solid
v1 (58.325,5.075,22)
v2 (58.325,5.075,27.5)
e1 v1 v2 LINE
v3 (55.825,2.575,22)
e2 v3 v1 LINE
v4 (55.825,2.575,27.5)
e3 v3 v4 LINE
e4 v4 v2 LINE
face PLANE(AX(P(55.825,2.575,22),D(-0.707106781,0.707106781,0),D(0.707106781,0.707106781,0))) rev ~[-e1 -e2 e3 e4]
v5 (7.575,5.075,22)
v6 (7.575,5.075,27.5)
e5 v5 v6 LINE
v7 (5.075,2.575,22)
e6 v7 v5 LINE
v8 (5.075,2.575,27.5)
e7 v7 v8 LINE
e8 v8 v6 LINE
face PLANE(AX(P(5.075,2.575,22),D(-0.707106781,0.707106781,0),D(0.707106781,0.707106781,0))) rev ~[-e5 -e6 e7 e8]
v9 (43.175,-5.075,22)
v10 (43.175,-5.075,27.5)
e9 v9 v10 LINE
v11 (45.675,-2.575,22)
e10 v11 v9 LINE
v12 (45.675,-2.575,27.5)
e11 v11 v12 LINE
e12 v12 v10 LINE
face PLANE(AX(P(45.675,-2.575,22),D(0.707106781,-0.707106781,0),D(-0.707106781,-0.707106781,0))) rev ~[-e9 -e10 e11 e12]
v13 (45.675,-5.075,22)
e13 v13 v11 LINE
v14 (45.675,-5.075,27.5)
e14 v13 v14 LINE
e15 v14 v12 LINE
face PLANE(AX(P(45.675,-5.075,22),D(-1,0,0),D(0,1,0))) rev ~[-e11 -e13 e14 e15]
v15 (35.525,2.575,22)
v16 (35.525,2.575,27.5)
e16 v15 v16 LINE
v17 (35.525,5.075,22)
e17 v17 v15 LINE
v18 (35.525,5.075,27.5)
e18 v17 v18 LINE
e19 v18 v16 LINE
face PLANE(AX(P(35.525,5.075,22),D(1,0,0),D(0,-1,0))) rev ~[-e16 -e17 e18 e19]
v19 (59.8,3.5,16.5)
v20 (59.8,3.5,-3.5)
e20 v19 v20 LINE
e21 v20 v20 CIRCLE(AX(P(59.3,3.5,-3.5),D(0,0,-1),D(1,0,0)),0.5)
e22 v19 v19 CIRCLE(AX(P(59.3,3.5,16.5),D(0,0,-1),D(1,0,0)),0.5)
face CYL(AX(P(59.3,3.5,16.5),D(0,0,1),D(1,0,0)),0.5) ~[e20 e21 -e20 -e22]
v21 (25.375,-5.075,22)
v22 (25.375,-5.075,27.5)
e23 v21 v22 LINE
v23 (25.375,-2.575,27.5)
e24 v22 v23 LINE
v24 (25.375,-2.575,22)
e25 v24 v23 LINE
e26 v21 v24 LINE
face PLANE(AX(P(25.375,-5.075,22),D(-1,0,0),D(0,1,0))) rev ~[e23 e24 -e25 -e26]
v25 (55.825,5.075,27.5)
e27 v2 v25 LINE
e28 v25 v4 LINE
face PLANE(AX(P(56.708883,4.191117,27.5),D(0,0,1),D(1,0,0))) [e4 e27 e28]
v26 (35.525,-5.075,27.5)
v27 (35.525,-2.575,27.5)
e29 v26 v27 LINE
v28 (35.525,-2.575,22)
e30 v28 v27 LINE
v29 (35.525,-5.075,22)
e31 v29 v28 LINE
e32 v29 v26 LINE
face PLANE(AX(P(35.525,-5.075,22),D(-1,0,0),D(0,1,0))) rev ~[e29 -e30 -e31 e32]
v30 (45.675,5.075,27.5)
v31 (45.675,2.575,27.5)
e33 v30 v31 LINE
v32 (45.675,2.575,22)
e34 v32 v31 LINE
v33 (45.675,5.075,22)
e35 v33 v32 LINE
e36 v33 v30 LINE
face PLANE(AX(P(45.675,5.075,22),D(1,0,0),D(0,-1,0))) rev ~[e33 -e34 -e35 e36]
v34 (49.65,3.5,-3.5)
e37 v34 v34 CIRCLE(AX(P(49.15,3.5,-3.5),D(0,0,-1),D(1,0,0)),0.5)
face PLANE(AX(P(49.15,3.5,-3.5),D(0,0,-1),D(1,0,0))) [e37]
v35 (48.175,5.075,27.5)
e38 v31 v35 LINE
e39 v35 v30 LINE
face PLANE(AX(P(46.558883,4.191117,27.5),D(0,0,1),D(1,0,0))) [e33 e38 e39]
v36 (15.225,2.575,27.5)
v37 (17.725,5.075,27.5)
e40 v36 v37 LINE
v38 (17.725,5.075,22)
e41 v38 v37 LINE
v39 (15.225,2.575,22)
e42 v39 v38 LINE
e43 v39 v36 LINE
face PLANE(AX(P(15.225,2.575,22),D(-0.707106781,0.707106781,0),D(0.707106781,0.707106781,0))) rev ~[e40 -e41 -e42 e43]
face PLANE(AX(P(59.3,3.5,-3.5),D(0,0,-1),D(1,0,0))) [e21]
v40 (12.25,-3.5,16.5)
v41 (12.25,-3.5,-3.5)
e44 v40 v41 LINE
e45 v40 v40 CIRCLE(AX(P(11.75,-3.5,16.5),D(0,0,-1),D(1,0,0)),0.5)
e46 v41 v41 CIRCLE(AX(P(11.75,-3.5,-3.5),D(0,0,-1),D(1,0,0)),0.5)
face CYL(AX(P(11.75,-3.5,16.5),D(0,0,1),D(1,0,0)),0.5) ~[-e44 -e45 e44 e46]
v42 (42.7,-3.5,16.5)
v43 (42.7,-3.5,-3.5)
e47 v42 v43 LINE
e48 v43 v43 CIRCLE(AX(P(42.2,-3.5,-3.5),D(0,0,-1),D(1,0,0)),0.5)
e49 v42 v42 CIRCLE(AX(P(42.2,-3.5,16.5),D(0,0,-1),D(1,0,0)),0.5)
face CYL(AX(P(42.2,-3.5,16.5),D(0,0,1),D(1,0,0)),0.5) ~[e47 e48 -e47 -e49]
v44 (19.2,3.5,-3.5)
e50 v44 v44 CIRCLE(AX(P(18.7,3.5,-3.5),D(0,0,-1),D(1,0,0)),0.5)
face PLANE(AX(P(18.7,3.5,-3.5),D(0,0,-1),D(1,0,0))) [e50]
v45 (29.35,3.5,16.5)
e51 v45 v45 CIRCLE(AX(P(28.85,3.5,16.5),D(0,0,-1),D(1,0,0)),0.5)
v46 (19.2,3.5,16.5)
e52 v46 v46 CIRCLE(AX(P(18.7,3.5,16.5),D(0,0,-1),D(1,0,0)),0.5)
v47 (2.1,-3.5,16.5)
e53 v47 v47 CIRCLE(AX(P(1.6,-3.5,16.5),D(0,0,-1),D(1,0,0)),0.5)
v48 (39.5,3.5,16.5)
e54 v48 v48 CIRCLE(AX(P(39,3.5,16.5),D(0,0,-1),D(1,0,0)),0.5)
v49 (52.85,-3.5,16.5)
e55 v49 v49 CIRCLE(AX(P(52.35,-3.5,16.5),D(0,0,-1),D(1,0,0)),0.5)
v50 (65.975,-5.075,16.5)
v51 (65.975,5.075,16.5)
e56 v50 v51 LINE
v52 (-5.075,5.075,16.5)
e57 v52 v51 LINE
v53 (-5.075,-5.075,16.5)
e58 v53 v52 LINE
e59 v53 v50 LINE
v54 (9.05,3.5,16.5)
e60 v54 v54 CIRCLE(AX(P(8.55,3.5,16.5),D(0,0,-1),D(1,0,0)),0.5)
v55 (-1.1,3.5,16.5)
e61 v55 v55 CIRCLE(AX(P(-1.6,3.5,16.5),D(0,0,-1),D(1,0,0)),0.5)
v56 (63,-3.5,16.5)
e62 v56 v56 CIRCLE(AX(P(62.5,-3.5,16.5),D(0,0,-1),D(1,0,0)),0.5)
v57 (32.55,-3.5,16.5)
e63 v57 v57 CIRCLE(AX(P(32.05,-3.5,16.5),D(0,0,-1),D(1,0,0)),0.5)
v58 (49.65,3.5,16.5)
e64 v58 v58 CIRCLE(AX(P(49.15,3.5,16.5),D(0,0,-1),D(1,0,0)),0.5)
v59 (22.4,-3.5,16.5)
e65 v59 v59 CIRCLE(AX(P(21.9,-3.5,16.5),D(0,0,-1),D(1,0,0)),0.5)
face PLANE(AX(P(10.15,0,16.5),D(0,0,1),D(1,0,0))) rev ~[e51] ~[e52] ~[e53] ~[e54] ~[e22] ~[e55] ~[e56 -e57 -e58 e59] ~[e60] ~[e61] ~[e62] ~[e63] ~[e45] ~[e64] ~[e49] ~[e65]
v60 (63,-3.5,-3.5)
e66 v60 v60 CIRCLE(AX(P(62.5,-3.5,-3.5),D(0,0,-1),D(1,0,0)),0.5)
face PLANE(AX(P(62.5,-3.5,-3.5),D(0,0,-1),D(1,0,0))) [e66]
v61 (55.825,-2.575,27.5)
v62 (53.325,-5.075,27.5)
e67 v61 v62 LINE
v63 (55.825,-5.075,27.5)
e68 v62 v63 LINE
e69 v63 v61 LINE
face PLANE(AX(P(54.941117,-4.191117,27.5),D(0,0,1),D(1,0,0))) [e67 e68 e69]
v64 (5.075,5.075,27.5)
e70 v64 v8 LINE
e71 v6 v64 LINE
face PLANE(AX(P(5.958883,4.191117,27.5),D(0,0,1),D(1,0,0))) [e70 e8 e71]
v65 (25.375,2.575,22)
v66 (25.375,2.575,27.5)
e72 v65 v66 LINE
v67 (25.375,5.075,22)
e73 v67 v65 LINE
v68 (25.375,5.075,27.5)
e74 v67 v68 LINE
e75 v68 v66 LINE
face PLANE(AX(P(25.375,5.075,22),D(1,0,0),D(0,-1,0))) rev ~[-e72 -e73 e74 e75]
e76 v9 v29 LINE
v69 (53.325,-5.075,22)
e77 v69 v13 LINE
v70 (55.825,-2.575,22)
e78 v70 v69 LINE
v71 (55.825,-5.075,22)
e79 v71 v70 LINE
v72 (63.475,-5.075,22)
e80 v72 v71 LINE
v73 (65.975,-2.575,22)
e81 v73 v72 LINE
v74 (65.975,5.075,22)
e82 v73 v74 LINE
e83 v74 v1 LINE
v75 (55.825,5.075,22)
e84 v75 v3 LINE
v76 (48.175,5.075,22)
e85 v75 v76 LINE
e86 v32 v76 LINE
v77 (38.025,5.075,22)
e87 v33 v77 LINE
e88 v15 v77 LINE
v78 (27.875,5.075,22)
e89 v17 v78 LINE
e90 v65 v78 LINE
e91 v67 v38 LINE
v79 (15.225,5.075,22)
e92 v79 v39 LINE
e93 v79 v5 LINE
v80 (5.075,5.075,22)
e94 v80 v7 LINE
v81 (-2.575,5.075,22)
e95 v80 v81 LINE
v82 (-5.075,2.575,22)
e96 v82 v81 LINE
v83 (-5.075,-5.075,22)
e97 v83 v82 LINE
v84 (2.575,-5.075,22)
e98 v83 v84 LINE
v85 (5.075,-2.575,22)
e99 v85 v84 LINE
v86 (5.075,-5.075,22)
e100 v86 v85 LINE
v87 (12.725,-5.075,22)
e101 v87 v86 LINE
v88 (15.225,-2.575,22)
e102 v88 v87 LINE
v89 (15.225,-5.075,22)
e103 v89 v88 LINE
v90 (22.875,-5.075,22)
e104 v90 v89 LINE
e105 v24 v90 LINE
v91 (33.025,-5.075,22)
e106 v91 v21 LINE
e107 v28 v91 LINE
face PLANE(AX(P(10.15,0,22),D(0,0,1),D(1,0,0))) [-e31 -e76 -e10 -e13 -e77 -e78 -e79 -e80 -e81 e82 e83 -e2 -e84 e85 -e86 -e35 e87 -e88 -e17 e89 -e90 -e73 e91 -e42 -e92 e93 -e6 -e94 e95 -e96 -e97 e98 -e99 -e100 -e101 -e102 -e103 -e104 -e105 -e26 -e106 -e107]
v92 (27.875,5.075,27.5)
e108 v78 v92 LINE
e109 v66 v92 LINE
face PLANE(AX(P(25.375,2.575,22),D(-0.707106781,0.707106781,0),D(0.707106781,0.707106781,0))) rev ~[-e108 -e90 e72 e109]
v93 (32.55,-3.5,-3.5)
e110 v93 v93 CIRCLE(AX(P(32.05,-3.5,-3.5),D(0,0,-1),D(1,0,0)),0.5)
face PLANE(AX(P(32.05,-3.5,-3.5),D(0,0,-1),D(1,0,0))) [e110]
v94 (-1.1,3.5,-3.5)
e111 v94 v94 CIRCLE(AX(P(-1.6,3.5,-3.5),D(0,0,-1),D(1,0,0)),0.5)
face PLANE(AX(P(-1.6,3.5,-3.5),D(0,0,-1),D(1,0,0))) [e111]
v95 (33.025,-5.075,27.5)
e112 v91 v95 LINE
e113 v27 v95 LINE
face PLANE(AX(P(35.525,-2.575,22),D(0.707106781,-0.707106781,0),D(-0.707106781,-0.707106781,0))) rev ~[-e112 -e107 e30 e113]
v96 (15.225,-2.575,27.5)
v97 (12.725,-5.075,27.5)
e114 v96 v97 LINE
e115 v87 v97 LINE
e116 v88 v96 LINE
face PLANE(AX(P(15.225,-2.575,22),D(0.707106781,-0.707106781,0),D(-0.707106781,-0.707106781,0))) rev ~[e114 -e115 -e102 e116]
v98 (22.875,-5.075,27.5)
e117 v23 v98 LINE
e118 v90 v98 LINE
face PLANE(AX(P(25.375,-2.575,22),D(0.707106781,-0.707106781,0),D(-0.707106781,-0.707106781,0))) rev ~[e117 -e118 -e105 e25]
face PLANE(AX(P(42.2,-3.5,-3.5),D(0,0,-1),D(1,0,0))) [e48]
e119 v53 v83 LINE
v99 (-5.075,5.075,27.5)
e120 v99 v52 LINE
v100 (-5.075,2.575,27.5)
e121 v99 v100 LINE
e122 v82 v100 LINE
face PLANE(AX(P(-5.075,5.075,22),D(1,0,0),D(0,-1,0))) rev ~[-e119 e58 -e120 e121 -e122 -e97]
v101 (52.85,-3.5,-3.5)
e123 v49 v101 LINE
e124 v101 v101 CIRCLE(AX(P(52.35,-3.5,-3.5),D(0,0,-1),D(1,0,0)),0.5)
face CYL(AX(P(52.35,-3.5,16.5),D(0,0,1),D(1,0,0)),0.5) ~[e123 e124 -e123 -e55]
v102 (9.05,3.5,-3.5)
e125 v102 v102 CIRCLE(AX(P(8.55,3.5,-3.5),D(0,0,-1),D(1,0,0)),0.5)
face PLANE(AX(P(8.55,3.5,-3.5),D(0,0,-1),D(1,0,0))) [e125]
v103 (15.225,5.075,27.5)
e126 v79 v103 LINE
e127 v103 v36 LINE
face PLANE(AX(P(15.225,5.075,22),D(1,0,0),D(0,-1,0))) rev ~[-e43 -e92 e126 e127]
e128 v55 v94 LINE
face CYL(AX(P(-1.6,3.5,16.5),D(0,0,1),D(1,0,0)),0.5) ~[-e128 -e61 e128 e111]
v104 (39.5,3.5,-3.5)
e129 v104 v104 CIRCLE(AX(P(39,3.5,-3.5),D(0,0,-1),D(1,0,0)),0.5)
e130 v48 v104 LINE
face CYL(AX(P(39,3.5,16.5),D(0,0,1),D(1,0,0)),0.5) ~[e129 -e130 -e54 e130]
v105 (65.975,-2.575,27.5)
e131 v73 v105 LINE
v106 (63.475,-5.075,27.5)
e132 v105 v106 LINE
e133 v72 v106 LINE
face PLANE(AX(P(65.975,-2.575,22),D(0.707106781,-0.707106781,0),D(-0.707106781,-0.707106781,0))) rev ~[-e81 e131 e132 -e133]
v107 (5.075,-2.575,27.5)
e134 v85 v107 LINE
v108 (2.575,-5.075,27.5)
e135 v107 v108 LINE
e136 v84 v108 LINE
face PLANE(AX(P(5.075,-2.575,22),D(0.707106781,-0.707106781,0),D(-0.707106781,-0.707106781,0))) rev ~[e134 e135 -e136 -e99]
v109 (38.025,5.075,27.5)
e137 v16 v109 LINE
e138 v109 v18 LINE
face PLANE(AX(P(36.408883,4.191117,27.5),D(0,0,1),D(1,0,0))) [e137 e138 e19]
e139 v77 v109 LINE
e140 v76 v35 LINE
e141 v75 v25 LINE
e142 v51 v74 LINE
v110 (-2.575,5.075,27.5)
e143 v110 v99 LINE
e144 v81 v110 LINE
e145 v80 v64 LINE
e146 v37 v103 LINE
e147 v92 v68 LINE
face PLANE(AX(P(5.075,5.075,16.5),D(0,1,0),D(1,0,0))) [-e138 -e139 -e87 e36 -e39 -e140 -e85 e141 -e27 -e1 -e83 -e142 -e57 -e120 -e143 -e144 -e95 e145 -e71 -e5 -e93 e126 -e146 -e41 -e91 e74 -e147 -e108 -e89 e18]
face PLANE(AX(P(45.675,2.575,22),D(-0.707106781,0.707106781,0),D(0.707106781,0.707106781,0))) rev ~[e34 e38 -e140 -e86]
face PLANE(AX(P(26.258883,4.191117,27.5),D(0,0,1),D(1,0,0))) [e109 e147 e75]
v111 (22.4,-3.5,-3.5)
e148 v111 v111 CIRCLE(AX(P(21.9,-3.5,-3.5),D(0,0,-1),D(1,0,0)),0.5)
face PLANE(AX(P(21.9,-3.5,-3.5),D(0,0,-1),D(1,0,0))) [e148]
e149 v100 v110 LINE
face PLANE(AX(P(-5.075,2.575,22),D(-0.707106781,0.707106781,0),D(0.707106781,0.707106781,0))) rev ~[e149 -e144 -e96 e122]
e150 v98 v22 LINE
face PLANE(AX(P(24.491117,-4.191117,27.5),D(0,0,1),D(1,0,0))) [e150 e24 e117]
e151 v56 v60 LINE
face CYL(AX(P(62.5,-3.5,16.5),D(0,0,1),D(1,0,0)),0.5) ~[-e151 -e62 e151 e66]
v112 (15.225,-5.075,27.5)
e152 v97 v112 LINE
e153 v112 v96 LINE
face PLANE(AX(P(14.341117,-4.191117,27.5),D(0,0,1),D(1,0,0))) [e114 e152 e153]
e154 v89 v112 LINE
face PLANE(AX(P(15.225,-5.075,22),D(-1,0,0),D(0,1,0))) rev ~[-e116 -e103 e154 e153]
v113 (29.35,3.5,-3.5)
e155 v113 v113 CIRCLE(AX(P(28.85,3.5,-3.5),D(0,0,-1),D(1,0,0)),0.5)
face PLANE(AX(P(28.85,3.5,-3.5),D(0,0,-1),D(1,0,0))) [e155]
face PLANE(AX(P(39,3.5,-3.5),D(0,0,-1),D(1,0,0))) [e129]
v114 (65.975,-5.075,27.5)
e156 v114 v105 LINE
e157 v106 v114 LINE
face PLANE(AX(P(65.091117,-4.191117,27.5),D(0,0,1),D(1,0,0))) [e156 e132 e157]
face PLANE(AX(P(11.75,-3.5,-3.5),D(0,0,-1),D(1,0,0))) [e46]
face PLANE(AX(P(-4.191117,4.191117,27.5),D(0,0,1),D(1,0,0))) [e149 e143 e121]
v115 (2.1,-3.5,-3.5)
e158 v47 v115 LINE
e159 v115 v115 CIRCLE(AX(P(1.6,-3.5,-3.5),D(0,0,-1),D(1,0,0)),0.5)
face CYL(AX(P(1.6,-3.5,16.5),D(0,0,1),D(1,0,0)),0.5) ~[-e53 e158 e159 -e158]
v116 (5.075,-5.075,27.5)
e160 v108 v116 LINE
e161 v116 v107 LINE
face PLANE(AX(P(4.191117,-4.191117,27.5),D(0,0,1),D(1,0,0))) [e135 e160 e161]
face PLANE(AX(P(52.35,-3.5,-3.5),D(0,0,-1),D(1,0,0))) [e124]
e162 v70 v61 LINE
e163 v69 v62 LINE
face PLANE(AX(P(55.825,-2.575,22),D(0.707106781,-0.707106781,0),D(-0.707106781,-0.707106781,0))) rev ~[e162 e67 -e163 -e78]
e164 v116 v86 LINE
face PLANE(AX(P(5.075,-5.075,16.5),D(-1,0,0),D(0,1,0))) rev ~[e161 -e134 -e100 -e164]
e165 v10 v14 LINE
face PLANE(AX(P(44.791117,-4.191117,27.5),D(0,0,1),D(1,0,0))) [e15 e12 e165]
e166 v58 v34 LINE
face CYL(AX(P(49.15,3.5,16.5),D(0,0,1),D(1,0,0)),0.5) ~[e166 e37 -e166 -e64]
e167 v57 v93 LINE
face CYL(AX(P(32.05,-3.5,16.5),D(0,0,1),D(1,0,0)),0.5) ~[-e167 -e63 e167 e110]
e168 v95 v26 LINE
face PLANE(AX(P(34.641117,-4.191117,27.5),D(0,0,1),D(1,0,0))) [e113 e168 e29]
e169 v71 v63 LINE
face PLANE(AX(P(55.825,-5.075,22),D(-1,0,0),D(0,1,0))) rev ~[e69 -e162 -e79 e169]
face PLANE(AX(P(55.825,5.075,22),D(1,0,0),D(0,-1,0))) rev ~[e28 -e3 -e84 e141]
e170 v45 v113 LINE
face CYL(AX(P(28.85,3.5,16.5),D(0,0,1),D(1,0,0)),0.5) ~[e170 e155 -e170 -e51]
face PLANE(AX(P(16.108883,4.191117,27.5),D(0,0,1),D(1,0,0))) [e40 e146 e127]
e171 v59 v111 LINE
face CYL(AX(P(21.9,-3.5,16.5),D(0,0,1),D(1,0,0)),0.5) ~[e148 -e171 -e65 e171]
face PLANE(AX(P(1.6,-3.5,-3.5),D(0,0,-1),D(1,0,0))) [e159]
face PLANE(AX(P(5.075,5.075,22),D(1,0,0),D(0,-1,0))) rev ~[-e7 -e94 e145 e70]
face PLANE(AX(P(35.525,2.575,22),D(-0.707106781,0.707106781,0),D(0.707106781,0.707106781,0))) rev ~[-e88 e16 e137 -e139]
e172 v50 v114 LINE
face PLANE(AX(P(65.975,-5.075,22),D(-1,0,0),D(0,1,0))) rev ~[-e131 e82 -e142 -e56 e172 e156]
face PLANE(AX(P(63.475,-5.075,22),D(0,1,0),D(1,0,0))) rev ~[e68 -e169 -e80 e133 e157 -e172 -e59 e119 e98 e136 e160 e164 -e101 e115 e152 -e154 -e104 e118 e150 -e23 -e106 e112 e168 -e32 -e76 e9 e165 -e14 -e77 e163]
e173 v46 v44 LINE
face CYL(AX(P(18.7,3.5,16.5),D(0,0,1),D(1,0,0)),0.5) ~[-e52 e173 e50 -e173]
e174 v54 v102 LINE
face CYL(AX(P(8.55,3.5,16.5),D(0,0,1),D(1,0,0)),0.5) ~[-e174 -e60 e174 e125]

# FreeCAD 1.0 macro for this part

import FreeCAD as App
import Part
import Sketcher
from FreeCAD import Vector
Q = App.Units.Quantity


def add_polygon(sketch, points):
    """Adds a closed chain of lines whose ends are joined by coincident constraints."""
    first, n = sketch.GeometryCount, len(points)
    for a, b in zip(points, points[1:] + points[:1]):
        sketch.addGeometry(Part.LineSegment(App.Vector(*a, 0), App.Vector(*b, 0)), False)
    for i in range(n):
        sketch.addConstraint(Sketcher.Constraint("Coincident", first + i, 2, first + (i + 1) % n, 1))

doc = App.newDocument("Part")
params = doc.addObject("Spreadsheet::Sheet", "Params")
for row, (alias, value) in enumerate([
    ("sketch1_width", "10.15 mm"),
    ("pad1_length", "5.5 mm"),
    ("sketch2_width", "2.5 mm"),
    ("pad2_length", "5.5 mm"),
    ("sketch3_diameter", "1 mm"),
    ("pad3_length", "20 mm"),
    ("linearpattern_pitch", "10.15 mm"),
], start=1):
    params.set(f"A{row}", alias)
    params.set(f"B{row}", "=" + value)
    params.setAlias(f"B{row}", alias)

body = doc.addObject("PartDesign::Body", "Body")

# Sketch on XY plane
sketch1 = body.newObject("Sketcher::SketchObject", "Sketch")
sketch1.AttachmentSupport = (doc.getObject("XY_Plane"), [""])
sketch1.MapMode = "FlatFace"
add_polygon(sketch1, [(-5, 5), (-5, -5), (5, -5), (5, 5)])  # lines 0-3
sketch1.addConstraint(Sketcher.Constraint("Vertical", 0))
sketch1.addConstraint(Sketcher.Constraint("Horizontal", 1))
sketch1.addConstraint(Sketcher.Constraint("Vertical", 2))
sketch1.addConstraint(Sketcher.Constraint("Horizontal", 3))
sketch1.addConstraint(Sketcher.Constraint("Symmetric", 0, 2, 2, 2, -1, 1))
sketch1.addConstraint(Sketcher.Constraint("Equal", 3, 0))
sketch1.addConstraint(Sketcher.Constraint("DistanceX", 1, 1, 1, 2, Q("10.15 mm")))
sketch1.setExpression("Constraints[10]", "Params.sketch1_width")
pad1 = body.newObject("PartDesign::Pad", "Pad")
pad1.Profile = sketch1
pad1.setExpression("Length", "Params.pad1_length")

# Sketch on XY plane
sketch2 = body.newObject("Sketcher::SketchObject", "Sketch001")
sketch2.AttachmentSupport = (doc.getObject("XY_Plane"), [""])
sketch2.MapMode = "FlatFace"
sketch2.AttachmentOffset = App.Placement(Vector(0, 0, 5.5), App.Rotation())
add_polygon(sketch2, [(-5.1, 2.6), (-2.6, 5.1), (-5.1, 5.1)])  # lines 0-2
add_polygon(sketch2, [(2.6, -5.1), (5.1, -5.1), (5.1, -2.6)])  # lines 3-5
sketch2.addConstraint(Sketcher.Constraint("Horizontal", 1))
sketch2.addConstraint(Sketcher.Constraint("Vertical", 2))
sketch2.addConstraint(Sketcher.Constraint("Horizontal", 3))
sketch2.addConstraint(Sketcher.Constraint("Vertical", 4))
sketch2.addConstraint(Sketcher.Constraint("Symmetric", 1, 2, 3, 2, -1, 1))
sketch2.addConstraint(Sketcher.Constraint("Parallel", 0, 5))
sketch2.addConstraint(Sketcher.Constraint("Equal", 1, 3))
sketch2.addConstraint(Sketcher.Constraint("Equal", 3, 2))
sketch2.addConstraint(Sketcher.Constraint("DistanceX", 1, 2, 1, 1, Q("2.5 mm")))
sketch2.addConstraint(Sketcher.Constraint("DistanceX", 0, 2, 3, 2, Q("7.65 mm")))
sketch2.addConstraint(Sketcher.Constraint("DistanceY", 3, 2, 0, 2, Q("10.15 mm")))
sketch2.setExpression("Constraints[14]", "Params.sketch2_width")
pad2 = body.newObject("PartDesign::Pad", "Pad001")
pad2.Profile = sketch2
pad2.setExpression("Length", "Params.pad2_length")

# Sketch on XY plane
sketch3 = body.newObject("Sketcher::SketchObject", "Sketch002")
sketch3.AttachmentSupport = (doc.getObject("XY_Plane"), [""])
sketch3.MapMode = "FlatFace"
sketch3.addGeometry(Part.Circle(Vector(1.6, -3.5, 0), Vector(0, 0, 1), 0.5), False)
sketch3.addGeometry(Part.Circle(Vector(-1.6, 3.5, 0), Vector(0, 0, 1), 0.5), False)
sketch3.addConstraint(Sketcher.Constraint("Equal", 0, 1))
sketch3.addConstraint(Sketcher.Constraint("Symmetric", 0, 3, 1, 3, -1, 1))
sketch3.addConstraint(Sketcher.Constraint("Diameter", 0, Q("1 mm")))
sketch3.addConstraint(Sketcher.Constraint("DistanceY", 0, 3, 1, 3, Q("7 mm")))
sketch3.addConstraint(Sketcher.Constraint("DistanceX", -1, 1, 0, 3, Q("1.6 mm")))
sketch3.setExpression("Constraints[2]", "Params.sketch3_diameter")
pad3 = body.newObject("PartDesign::Pad", "Pad002")
pad3.Profile = sketch3
pad3.setExpression("Length", "Params.pad3_length")
pad3.Reversed = True
doc.recompute()

linearpattern = body.newObject("PartDesign::LinearPattern", "LinearPattern")
linearpattern.Originals = [pad1, pad2, pad3]
linearpattern.Direction = (doc.getObject("X_Axis"), [""])
linearpattern.Mode = "offset"
linearpattern.setExpression("Offset", "Params.linearpattern_pitch")
linearpattern.Occurrences = 7
body.Tip = linearpattern
body2 = doc.addObject("PartDesign::Body", "Body001")
doc.recompute()

body.Placement = App.Placement(Vector(0, 0, 16.5), App.Rotation(Vector(0, 0, 1), 0))
boolean = body2.newObject("PartDesign::Boolean", "Boolean")
boolean.Type = "Fuse"
boolean.addObjects([body])

doc.recompute()
